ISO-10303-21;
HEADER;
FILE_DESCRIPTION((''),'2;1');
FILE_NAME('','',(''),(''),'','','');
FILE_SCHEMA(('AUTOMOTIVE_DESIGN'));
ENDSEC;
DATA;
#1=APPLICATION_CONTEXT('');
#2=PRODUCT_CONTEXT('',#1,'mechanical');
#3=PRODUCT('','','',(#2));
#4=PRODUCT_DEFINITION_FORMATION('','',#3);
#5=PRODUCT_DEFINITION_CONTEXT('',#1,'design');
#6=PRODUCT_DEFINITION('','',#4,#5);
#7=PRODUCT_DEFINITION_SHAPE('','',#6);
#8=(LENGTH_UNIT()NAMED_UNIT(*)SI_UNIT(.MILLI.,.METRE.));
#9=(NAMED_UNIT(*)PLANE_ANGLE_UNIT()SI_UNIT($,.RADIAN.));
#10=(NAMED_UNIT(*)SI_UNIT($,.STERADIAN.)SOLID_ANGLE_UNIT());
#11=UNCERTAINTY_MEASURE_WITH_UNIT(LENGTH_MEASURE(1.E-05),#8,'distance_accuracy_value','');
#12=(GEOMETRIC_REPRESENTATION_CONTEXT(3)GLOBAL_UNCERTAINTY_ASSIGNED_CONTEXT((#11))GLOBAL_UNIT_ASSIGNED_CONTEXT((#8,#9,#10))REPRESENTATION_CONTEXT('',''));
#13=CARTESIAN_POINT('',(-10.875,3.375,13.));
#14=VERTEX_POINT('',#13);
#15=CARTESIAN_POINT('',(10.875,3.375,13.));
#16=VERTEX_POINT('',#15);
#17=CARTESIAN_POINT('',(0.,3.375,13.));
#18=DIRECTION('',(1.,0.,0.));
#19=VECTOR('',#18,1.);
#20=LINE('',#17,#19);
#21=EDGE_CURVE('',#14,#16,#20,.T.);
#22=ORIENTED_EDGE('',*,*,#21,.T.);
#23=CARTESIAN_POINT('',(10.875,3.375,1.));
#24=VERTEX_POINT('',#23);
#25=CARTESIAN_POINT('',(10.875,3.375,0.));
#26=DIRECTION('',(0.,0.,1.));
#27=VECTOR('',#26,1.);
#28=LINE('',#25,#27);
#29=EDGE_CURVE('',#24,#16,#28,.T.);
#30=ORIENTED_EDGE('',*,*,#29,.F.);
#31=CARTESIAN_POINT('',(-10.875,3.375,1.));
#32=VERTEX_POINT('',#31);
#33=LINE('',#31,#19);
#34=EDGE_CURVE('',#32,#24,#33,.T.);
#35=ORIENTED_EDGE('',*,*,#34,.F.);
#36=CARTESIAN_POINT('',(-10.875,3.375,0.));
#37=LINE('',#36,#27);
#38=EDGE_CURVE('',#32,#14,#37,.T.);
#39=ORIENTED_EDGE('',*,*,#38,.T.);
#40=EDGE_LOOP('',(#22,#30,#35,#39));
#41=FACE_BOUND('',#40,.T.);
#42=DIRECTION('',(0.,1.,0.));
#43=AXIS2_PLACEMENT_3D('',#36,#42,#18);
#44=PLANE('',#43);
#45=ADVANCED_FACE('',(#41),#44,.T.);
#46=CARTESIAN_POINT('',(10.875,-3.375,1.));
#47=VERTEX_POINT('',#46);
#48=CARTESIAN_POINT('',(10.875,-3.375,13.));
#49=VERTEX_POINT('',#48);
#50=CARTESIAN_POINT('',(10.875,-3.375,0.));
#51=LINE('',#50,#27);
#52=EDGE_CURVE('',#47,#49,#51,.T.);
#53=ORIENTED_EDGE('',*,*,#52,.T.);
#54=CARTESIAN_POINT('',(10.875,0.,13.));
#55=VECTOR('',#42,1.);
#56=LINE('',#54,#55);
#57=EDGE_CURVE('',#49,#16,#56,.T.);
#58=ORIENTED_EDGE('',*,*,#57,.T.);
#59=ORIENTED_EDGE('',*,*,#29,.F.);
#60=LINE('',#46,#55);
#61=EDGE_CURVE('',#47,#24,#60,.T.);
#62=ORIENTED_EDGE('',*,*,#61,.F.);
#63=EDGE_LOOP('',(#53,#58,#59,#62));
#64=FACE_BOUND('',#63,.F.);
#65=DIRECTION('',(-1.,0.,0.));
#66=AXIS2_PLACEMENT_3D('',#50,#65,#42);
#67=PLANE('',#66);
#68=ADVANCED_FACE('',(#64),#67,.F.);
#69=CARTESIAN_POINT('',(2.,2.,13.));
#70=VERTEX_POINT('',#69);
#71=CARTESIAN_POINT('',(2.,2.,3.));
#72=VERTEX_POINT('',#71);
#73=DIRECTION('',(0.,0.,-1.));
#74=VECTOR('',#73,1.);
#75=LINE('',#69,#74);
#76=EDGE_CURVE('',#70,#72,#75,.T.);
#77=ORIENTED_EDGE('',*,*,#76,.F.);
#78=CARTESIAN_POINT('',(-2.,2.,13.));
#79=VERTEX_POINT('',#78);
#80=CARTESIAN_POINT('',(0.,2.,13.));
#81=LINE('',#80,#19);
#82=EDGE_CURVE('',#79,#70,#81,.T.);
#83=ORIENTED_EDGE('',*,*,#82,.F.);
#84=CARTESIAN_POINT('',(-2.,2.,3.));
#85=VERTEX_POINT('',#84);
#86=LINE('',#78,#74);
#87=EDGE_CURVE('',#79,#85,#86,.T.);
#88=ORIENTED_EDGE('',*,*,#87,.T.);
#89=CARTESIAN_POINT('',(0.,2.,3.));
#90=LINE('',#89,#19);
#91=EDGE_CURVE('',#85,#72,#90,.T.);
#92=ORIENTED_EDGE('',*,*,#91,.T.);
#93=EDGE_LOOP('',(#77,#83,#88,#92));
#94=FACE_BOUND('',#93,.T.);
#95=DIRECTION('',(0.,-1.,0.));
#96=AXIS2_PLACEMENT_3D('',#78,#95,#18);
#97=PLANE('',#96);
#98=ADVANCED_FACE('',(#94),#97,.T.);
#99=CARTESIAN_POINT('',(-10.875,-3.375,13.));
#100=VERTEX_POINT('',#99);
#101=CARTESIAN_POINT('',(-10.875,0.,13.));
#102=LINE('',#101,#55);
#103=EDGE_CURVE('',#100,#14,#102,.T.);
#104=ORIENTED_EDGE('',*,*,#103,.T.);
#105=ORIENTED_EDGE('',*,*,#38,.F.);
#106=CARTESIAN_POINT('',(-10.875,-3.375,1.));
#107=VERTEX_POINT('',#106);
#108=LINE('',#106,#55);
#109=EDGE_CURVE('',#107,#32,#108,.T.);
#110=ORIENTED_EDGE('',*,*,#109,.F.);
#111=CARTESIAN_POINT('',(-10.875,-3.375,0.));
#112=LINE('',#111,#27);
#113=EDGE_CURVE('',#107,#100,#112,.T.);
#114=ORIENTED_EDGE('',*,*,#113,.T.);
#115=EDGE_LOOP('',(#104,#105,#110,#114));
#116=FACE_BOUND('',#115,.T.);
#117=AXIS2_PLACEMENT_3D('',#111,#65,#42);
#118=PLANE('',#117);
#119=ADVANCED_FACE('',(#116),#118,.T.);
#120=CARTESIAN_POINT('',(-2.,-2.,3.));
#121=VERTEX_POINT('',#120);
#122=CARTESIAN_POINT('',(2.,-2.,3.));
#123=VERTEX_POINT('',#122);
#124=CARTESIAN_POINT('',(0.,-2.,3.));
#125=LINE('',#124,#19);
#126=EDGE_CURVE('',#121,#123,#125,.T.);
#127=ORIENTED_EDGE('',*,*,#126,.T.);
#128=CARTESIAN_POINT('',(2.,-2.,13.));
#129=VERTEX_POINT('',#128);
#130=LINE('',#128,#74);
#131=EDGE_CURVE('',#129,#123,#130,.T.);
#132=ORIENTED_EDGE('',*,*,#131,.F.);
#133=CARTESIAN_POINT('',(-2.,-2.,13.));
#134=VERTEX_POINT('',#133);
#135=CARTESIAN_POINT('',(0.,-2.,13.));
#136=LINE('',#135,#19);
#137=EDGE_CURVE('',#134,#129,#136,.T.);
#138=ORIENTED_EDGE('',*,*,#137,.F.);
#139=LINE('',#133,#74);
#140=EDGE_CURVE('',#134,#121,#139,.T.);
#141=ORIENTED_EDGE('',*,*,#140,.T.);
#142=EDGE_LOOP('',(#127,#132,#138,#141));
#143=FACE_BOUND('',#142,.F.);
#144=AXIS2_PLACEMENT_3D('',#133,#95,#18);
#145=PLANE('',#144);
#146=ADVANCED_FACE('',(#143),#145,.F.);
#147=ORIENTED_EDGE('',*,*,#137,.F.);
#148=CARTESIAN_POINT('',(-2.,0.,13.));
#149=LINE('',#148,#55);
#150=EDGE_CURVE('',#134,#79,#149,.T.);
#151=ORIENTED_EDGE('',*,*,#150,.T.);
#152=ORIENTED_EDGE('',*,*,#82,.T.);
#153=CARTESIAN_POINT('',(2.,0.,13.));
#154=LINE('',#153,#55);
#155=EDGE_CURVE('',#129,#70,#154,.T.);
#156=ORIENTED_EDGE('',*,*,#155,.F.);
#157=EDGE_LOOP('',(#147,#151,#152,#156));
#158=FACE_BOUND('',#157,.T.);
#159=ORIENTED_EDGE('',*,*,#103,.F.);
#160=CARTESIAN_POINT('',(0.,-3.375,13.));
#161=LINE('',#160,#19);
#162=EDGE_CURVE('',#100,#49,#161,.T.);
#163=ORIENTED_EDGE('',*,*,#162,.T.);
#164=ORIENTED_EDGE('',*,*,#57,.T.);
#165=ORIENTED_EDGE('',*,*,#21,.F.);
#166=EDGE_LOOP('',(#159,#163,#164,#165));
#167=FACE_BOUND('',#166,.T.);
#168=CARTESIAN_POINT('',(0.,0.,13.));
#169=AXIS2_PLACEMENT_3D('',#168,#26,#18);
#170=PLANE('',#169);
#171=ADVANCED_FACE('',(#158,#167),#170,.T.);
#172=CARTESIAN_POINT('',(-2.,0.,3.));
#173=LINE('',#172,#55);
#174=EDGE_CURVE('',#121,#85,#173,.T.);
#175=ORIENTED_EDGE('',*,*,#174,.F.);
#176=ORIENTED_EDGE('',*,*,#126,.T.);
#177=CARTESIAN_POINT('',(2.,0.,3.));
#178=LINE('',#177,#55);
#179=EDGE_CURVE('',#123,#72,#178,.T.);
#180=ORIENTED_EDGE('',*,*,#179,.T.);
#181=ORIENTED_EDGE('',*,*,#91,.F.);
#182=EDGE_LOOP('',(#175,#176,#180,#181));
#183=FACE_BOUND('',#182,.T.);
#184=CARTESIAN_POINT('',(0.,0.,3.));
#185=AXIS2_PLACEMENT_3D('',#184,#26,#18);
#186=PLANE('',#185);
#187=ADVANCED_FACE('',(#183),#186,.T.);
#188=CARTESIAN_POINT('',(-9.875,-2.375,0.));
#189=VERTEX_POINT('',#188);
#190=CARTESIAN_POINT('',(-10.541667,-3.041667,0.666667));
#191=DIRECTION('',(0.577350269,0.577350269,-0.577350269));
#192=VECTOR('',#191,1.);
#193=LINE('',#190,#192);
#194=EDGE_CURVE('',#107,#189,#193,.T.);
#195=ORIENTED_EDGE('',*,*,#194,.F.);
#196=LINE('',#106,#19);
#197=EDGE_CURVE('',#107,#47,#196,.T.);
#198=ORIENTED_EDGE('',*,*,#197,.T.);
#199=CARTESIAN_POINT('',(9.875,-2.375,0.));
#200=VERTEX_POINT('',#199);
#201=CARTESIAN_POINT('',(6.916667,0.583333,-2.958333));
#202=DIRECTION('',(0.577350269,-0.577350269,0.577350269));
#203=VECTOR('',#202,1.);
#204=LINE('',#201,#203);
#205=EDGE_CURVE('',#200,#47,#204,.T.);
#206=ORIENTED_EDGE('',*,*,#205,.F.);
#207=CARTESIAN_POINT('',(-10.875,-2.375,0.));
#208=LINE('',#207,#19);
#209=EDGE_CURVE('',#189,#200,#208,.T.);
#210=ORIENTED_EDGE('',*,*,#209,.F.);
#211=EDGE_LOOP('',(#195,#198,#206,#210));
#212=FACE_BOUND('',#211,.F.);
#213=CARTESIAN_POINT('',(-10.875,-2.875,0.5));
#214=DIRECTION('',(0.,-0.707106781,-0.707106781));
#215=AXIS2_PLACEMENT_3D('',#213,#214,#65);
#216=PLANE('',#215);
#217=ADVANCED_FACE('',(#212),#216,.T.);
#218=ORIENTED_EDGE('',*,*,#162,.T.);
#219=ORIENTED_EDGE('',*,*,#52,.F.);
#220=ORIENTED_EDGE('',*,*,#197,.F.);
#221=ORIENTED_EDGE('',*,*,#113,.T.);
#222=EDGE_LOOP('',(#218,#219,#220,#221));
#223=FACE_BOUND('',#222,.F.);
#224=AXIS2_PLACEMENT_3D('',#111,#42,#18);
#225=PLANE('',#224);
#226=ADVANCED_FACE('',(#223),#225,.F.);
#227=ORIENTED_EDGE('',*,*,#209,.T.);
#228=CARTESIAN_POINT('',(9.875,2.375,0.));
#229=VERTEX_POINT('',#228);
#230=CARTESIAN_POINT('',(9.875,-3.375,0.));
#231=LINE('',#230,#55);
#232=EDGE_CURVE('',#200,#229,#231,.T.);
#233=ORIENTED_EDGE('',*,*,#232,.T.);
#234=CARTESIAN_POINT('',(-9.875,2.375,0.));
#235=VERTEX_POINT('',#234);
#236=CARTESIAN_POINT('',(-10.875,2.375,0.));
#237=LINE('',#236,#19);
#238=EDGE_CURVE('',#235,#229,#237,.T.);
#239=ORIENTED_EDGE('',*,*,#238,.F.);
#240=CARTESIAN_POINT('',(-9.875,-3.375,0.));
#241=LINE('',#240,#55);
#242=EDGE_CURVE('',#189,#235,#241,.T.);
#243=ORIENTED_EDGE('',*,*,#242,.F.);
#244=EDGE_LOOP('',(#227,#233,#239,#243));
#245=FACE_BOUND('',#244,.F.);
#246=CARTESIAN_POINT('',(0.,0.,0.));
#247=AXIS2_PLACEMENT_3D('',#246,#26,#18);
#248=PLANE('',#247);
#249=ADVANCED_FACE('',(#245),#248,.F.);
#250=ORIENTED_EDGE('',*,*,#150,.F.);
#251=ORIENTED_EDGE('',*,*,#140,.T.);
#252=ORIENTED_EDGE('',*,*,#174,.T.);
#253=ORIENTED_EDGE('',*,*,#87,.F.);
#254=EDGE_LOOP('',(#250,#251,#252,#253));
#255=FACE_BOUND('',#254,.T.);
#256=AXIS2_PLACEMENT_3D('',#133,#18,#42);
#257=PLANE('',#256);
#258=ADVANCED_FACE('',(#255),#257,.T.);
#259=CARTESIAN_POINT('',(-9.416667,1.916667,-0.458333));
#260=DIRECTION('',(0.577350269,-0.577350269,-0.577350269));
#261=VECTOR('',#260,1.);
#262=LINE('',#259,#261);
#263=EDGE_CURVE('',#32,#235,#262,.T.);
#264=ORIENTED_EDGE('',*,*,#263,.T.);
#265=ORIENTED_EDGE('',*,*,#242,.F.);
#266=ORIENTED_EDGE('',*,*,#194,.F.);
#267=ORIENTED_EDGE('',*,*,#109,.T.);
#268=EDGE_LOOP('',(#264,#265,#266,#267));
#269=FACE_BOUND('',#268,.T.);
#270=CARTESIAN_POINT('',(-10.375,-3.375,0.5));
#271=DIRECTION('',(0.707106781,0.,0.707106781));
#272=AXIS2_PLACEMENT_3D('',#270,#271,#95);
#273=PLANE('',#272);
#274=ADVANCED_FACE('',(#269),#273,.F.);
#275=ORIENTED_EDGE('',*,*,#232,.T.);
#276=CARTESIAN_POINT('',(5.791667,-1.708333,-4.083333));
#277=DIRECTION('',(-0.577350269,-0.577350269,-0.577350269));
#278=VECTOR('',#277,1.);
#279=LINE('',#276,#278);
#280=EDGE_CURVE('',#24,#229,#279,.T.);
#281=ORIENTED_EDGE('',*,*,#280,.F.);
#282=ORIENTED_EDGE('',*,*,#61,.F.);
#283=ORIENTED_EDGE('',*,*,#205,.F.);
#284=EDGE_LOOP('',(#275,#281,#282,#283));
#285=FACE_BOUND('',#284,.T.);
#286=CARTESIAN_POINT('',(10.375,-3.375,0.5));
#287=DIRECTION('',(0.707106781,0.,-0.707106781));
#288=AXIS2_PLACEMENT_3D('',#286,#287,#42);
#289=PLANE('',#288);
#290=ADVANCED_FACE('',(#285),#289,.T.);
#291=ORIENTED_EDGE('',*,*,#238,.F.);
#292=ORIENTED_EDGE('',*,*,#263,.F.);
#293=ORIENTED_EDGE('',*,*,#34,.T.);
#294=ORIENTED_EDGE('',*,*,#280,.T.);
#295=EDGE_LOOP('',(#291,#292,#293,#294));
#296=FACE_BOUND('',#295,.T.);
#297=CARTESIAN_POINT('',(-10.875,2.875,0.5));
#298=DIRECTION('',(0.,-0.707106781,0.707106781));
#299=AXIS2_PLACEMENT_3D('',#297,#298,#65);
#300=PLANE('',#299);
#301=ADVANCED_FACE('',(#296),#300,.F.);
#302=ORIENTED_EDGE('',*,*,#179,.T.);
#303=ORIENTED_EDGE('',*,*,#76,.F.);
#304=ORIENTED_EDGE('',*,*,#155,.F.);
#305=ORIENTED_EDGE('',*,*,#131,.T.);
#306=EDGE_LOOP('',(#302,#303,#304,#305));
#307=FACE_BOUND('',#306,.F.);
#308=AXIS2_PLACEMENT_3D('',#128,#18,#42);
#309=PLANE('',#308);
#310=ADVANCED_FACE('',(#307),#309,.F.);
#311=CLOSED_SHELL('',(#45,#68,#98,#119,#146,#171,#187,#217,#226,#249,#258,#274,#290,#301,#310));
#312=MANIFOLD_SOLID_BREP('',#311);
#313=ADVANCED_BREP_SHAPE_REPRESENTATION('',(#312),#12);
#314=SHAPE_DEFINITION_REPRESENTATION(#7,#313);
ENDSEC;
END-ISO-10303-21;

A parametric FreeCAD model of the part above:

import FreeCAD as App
import Part
import Sketcher
Q = App.Units.Quantity


def edges_at(feature, points):
    """Names of the edges that pass closest to the given points."""
    edges = feature.Shape.Edges
    near = lambda p: min(range(len(edges)), key=lambda i: edges[i].distToShape(Part.Vertex(*p))[0])
    return sorted({f"Edge{near(p) + 1}" for p in points})

doc = App.newDocument("Part")
body = doc.addObject("PartDesign::Body", "Body")

sketch1 = body.newObject("Sketcher::SketchObject", "Sketch")
sketch1.AttachmentSupport = (doc.getObject("XY_Plane"), [""])
sketch1.MapMode = "FlatFace"
sketch1.addGeometry(Part.LineSegment(App.Vector(-11, 3, 0), App.Vector(-11, -3, 0)), False)
sketch1.addGeometry(Part.LineSegment(App.Vector(-11, -3, 0), App.Vector(11, -3, 0)), False)
sketch1.addGeometry(Part.LineSegment(App.Vector(11, -3, 0), App.Vector(11, 3, 0)), False)
sketch1.addGeometry(Part.LineSegment(App.Vector(11, 3, 0), App.Vector(-11, 3, 0)), False)
sketch1.addConstraint(Sketcher.Constraint("Coincident", 0, 2, 1, 1))
sketch1.addConstraint(Sketcher.Constraint("Coincident", 1, 2, 2, 1))
sketch1.addConstraint(Sketcher.Constraint("Coincident", 2, 2, 3, 1))
sketch1.addConstraint(Sketcher.Constraint("Coincident", 3, 2, 0, 1))
sketch1.addConstraint(Sketcher.Constraint("Vertical", 0))
sketch1.addConstraint(Sketcher.Constraint("Horizontal", 1))
sketch1.addConstraint(Sketcher.Constraint("Vertical", 2))
sketch1.addConstraint(Sketcher.Constraint("Horizontal", 3))
sketch1.addConstraint(Sketcher.Constraint("Symmetric", 0, 2, 2, 2, -1, 1))
sketch1.addConstraint(Sketcher.Constraint("DistanceX", 1, 1, 1, 2, Q("21.75 mm")))
sketch1.addConstraint(Sketcher.Constraint("DistanceY", 0, 2, 0, 1, Q("6.75 mm")))
pad1 = body.newObject("PartDesign::Pad", "Pad")
pad1.Profile = sketch1
pad1.Length = 13

sketch2 = body.newObject("Sketcher::SketchObject", "Sketch001")
sketch2.AttachmentSupport = (doc.getObject("XY_Plane"), [""])
sketch2.MapMode = "FlatFace"
sketch2.AttachmentOffset = App.Placement(App.Vector(0, 0, 13), App.Rotation())
sketch2.addGeometry(Part.LineSegment(App.Vector(-2, 2, 0), App.Vector(-2, -2, 0)), False)
sketch2.addGeometry(Part.LineSegment(App.Vector(-2, -2, 0), App.Vector(2, -2, 0)), False)
sketch2.addGeometry(Part.LineSegment(App.Vector(2, -2, 0), App.Vector(2, 2, 0)), False)
sketch2.addGeometry(Part.LineSegment(App.Vector(2, 2, 0), App.Vector(-2, 2, 0)), False)
sketch2.addConstraint(Sketcher.Constraint("Coincident", 0, 2, 1, 1))
sketch2.addConstraint(Sketcher.Constraint("Coincident", 1, 2, 2, 1))
sketch2.addConstraint(Sketcher.Constraint("Coincident", 2, 2, 3, 1))
sketch2.addConstraint(Sketcher.Constraint("Coincident", 3, 2, 0, 1))
sketch2.addConstraint(Sketcher.Constraint("Vertical", 0))
sketch2.addConstraint(Sketcher.Constraint("Horizontal", 1))
sketch2.addConstraint(Sketcher.Constraint("Vertical", 2))
sketch2.addConstraint(Sketcher.Constraint("Horizontal", 3))
sketch2.addConstraint(Sketcher.Constraint("Symmetric", 0, 2, 2, 2, -1, 1))
sketch2.addConstraint(Sketcher.Constraint("Equal", 3, 0))
sketch2.addConstraint(Sketcher.Constraint("DistanceX", 1, 1, 1, 2, Q("4 mm")))
pocket1 = body.newObject("PartDesign::Pocket", "Pocket")
pocket1.Profile = sketch2
pocket1.Length = 10
doc.recompute()

chamfer = body.newObject("PartDesign::Chamfer", "Chamfer")
chamfer.Base = (pocket1, edges_at(pocket1, [
    (0, 3.375, 0),
    (10.875, 0, 0),
    (0, -3.375, 0),
    (-10.875, 0, 0),
]))
chamfer.Size = 1

doc.recompute()
